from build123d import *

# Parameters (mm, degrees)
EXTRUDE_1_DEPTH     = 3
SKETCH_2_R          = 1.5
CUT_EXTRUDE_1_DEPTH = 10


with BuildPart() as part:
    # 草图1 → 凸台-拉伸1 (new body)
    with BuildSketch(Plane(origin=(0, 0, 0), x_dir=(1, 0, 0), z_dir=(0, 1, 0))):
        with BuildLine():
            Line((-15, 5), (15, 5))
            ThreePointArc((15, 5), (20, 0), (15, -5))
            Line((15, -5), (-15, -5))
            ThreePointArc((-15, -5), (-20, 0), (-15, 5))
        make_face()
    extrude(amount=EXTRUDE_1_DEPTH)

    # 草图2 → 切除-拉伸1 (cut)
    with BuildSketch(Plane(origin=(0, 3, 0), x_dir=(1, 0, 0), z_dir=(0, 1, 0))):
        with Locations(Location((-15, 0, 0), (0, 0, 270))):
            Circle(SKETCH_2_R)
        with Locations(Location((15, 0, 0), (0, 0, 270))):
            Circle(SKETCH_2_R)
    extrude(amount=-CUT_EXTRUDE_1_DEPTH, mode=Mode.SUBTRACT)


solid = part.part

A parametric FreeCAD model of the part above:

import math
import FreeCAD as App
import Part
import Sketcher

V = App.Vector

doc = App.newDocument("Part")
body = doc.addObject("PartDesign::Body", "Body")

sketch1 = doc.addObject("Sketcher::SketchObject", "Sketch")
body.addObject(sketch1)
sketch1.AttachmentSupport = (doc.XZ_Plane, [""])
sketch1.MapMode = "FlatFace"
sketch1.addGeometry(Part.LineSegment(V(15, -5, 0), V(-15, -5, 0)), False)
sketch1.addGeometry(Part.ArcOfCircle(Part.Circle(V(-15, 0, 0), V(0, 0, 1), 5), math.radians(90), math.radians(270)), False)
sketch1.addGeometry(Part.LineSegment(V(-15, 5, 0), V(15, 5, 0)), False)
sketch1.addGeometry(Part.ArcOfCircle(Part.Circle(V(15, 0, 0), V(0, 0, 1), 5), math.radians(-90), math.radians(90)), False)
sketch1.addConstraint(Sketcher.Constraint("Tangent", 0, 2, 1, 2))
sketch1.addConstraint(Sketcher.Constraint("Tangent", 1, 1, 2, 1))
sketch1.addConstraint(Sketcher.Constraint("Tangent", 2, 2, 3, 2))
sketch1.addConstraint(Sketcher.Constraint("Tangent", 3, 1, 0, 1))
sketch1.addConstraint(Sketcher.Constraint("Horizontal", 0))
sketch1.addConstraint(Sketcher.Constraint("Horizontal", 2))
sketch1.addConstraint(Sketcher.Constraint("Symmetric", 1, 3, 3, 3, -1, 1))
sketch1.addConstraint(Sketcher.Constraint("Radius", 1, 5.0))
sketch1.addConstraint(Sketcher.Constraint("DistanceX", 0, 2, 0, 1, 30.0))
pad1 = doc.addObject("PartDesign::Pad", "Pad")
body.addObject(pad1)
pad1.Profile = sketch1
pad1.Length = 3
pad1.Reversed = True

sketch2 = doc.addObject("Sketcher::SketchObject", "Sketch001")
body.addObject(sketch2)
sketch2.AttachmentSupport = (doc.XZ_Plane, [""])
sketch2.MapMode = "FlatFace"
sketch2.AttachmentOffset = App.Placement(V(0, 0, -3), App.Rotation())
sketch2.addGeometry(Part.Circle(V(-15, 0, 0), V(0, 0, 1), 1.5), False)
sketch2.addGeometry(Part.Circle(V(15, 0, 0), V(0, 0, 1), 1.5), False)
sketch2.addConstraint(Sketcher.Constraint("Equal", 0, 1))
sketch2.addConstraint(Sketcher.Constraint("Symmetric", 0, 3, 1, 3, -1, 1))
sketch2.addConstraint(Sketcher.Constraint("PointOnObject", 0, 3, -1))
sketch2.addConstraint(Sketcher.Constraint("Diameter", 0, 3.0))
sketch2.addConstraint(Sketcher.Constraint("DistanceX", 0, 3, -1, 1, 15.0))
pocket1 = doc.addObject("PartDesign::Pocket", "Pocket")
body.addObject(pocket1)
pocket1.Profile = sketch2
pocket1.Length = 10
pocket1.Reversed = True

doc.recompute()
